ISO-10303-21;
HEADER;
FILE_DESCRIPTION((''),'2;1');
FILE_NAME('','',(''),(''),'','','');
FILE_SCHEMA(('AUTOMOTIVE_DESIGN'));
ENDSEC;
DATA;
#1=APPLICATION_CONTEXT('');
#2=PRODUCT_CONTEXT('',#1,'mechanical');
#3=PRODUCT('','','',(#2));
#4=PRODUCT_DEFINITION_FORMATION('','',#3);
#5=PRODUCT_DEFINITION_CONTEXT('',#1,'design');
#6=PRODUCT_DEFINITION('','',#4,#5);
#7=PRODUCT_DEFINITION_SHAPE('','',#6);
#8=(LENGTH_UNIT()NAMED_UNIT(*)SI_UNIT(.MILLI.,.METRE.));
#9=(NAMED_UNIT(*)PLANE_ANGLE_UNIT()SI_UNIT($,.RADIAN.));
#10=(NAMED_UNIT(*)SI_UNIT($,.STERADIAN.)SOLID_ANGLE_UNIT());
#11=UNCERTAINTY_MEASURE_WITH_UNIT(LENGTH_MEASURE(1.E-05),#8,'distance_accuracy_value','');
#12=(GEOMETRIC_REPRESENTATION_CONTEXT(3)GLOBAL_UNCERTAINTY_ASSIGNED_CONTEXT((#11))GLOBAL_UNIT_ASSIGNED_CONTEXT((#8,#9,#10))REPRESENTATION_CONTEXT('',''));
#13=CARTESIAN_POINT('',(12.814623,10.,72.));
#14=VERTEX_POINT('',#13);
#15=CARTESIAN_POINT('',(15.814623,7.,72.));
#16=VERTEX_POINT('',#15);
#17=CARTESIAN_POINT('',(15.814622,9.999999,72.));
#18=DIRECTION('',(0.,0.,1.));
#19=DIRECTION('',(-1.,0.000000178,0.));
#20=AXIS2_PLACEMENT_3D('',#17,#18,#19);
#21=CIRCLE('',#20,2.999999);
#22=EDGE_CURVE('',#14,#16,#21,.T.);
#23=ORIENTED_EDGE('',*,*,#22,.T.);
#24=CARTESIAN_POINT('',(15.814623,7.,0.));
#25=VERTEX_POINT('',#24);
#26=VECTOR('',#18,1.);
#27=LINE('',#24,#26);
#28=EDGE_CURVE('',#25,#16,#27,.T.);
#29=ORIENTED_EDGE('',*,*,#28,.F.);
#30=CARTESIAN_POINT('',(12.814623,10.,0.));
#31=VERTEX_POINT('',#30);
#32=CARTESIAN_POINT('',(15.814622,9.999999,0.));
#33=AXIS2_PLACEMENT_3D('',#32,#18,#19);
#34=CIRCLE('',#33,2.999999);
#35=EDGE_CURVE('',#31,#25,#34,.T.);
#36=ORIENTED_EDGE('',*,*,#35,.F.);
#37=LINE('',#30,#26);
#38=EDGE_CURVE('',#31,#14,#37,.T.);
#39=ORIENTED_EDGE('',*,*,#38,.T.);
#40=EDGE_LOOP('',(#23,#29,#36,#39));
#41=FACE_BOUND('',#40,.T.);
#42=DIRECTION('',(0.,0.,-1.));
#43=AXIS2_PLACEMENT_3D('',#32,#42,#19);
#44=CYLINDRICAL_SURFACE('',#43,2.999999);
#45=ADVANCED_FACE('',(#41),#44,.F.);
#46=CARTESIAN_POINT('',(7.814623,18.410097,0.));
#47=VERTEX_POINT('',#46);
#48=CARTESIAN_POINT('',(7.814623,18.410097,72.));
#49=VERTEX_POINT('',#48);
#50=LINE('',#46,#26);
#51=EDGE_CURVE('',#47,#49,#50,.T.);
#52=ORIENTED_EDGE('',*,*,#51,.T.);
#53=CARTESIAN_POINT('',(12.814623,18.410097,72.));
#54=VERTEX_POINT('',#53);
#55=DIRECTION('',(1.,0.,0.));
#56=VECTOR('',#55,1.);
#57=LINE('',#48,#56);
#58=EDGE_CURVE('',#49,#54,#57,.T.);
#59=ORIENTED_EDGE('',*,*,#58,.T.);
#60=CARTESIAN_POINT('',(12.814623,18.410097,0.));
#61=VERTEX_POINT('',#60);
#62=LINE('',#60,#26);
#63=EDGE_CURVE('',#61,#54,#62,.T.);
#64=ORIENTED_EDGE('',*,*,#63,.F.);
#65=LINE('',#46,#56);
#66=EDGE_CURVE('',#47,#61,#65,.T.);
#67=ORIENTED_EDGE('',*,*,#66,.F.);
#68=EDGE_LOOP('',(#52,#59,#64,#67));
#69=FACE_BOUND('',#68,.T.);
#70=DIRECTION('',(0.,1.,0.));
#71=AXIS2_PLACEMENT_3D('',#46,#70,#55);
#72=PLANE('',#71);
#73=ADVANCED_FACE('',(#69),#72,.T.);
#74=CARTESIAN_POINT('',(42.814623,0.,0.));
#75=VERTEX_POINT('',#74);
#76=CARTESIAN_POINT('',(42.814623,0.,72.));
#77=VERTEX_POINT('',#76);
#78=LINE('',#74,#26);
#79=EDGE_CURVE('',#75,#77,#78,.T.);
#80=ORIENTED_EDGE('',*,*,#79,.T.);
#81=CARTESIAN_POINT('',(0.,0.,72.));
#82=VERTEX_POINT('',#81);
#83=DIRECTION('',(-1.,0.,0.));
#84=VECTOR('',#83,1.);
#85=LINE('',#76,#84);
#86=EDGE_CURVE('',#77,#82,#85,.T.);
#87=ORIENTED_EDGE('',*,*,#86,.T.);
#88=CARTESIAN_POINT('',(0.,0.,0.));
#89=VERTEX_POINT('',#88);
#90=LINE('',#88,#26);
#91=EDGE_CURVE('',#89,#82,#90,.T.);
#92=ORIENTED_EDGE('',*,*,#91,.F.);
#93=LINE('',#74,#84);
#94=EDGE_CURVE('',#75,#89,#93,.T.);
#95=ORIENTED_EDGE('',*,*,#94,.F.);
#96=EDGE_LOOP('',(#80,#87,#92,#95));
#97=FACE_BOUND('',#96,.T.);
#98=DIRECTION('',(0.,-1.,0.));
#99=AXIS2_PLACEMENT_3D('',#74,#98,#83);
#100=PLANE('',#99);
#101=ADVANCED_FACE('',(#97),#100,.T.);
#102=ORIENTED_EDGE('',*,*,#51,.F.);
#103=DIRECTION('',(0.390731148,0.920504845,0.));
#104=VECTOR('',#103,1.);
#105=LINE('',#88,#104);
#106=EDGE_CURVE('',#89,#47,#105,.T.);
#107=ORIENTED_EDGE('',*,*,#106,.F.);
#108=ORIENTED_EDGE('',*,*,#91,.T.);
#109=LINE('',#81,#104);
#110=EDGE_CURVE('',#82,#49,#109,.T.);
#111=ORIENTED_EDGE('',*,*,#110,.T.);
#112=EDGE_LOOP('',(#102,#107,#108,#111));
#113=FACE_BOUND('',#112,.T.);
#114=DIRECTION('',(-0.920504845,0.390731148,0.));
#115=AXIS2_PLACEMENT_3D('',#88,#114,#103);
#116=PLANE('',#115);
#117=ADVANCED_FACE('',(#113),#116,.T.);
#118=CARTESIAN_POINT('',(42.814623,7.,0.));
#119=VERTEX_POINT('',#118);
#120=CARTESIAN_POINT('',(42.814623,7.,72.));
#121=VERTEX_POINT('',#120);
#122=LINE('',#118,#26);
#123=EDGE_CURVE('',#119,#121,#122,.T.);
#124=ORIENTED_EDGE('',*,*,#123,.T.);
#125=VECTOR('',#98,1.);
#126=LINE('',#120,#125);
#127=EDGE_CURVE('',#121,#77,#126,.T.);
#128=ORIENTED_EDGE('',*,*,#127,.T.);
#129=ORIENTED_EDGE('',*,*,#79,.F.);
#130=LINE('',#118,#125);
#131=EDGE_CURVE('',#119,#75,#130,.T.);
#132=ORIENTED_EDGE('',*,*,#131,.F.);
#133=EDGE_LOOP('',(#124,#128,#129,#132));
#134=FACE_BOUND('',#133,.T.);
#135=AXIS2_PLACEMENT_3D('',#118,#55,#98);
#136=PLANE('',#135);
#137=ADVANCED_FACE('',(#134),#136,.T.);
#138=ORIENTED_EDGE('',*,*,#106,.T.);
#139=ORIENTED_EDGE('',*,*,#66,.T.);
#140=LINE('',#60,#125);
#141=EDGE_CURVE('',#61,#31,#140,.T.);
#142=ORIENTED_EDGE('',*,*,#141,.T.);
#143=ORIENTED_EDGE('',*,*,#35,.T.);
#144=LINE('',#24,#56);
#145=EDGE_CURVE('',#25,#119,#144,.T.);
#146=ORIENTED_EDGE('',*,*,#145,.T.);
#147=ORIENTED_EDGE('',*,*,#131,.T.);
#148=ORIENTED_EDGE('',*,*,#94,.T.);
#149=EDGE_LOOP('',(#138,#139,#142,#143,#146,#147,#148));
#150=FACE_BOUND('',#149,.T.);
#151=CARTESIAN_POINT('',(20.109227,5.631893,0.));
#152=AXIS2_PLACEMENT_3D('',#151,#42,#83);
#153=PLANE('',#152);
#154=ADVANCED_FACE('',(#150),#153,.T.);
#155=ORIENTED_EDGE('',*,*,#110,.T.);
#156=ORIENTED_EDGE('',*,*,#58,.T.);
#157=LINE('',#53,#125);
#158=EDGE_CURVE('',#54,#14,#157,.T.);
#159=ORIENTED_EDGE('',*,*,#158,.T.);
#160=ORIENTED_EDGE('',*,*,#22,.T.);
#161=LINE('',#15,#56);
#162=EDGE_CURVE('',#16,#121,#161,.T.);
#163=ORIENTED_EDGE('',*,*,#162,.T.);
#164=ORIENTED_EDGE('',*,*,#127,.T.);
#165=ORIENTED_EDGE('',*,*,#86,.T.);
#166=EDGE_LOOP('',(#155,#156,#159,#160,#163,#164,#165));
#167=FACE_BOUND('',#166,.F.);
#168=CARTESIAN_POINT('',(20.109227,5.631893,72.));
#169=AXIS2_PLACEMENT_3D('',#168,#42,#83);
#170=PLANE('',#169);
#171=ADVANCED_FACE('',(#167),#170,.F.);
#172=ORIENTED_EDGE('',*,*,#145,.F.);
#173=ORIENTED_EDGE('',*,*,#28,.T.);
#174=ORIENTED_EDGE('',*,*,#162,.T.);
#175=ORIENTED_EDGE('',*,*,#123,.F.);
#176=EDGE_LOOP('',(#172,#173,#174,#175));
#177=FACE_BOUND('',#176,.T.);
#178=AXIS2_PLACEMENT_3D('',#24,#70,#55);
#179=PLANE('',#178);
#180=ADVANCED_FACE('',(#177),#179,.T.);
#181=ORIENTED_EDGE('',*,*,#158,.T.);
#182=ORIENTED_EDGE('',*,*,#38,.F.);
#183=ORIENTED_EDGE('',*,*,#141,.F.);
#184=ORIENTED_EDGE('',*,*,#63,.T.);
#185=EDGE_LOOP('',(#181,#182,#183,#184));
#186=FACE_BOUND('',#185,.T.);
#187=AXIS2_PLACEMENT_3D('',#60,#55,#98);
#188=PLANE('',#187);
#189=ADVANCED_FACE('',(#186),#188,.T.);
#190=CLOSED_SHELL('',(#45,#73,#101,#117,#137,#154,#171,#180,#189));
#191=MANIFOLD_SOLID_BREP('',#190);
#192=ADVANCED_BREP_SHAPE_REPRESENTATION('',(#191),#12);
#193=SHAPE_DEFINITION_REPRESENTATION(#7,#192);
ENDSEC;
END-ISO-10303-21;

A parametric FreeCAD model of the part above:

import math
import FreeCAD as App
import Part
import Sketcher
from FreeCAD import Vector
Q = App.Units.Quantity

doc = App.newDocument("Part")
body = doc.addObject("PartDesign::Body", "Body")

# Sketch on XY plane
sketch1 = body.newObject("Sketcher::SketchObject", "Sketch")
sketch1.AttachmentSupport = (doc.getObject("XY_Plane"), [""])
sketch1.MapMode = "FlatFace"
sketch1.addGeometry([
    Part.LineSegment(Vector(7.814623, 18.410097, 0), Vector(0, 0, 0)),  # 0
    Part.LineSegment(Vector(0, 0, 0), Vector(42.814623, 0, 0)),  # 1
    Part.LineSegment(Vector(42.814623, 0, 0), Vector(42.814623, 7, 0)),  # 2
    Part.LineSegment(Vector(42.814623, 7, 0), Vector(15.814623, 7, 0)),  # 3
    Part.ArcOfCircle(Part.Circle(Vector(15.814622, 9.999999, 0), Vector(0, 0, 1), 2.999999), math.radians(179.99999), math.radians(270.00001)),  # 4
    Part.LineSegment(Vector(12.814623, 10, 0), Vector(12.814623, 18.410097, 0)),  # 5
    Part.LineSegment(Vector(12.814623, 18.410097, 0), Vector(7.814623, 18.410097, 0)),  # 6
], False)
sketch1.addConstraint([
    Sketcher.Constraint("Coincident", 0, 2, 1, 1),
    Sketcher.Constraint("Coincident", 1, 2, 2, 1),
    Sketcher.Constraint("Coincident", 2, 2, 3, 1),
    Sketcher.Constraint("Tangent", 3, 2, 4, 2),
    Sketcher.Constraint("Tangent", 4, 1, 5, 1),
    Sketcher.Constraint("Coincident", 5, 2, 6, 1),
    Sketcher.Constraint("Coincident", 6, 2, 0, 1),
    Sketcher.Constraint("Horizontal", 1),
    Sketcher.Constraint("Vertical", 2),
    Sketcher.Constraint("Horizontal", 3),
    Sketcher.Constraint("Vertical", 5),
    Sketcher.Constraint("Horizontal", 6),
    Sketcher.Constraint("Coincident", 0, 2, -1, 1),
    Sketcher.Constraint("Radius", 4, 2.999999),
    Sketcher.Constraint("DistanceX", 3, 2, 3, 1, 27.0),
    Sketcher.Constraint("DistanceX", 6, 2, 6, 1, 5.0),
    Sketcher.Constraint("DistanceY", 2, 1, 2, 2, 7.0),
    Sketcher.Constraint("Angle", 0, Q("-113.000001 deg")),
    Sketcher.Constraint("Distance", 0, 20.0),
])
pad1 = body.newObject("PartDesign::Pad", "Pad")
pad1.Profile = sketch1
pad1.Length = 72

doc.recompute()
